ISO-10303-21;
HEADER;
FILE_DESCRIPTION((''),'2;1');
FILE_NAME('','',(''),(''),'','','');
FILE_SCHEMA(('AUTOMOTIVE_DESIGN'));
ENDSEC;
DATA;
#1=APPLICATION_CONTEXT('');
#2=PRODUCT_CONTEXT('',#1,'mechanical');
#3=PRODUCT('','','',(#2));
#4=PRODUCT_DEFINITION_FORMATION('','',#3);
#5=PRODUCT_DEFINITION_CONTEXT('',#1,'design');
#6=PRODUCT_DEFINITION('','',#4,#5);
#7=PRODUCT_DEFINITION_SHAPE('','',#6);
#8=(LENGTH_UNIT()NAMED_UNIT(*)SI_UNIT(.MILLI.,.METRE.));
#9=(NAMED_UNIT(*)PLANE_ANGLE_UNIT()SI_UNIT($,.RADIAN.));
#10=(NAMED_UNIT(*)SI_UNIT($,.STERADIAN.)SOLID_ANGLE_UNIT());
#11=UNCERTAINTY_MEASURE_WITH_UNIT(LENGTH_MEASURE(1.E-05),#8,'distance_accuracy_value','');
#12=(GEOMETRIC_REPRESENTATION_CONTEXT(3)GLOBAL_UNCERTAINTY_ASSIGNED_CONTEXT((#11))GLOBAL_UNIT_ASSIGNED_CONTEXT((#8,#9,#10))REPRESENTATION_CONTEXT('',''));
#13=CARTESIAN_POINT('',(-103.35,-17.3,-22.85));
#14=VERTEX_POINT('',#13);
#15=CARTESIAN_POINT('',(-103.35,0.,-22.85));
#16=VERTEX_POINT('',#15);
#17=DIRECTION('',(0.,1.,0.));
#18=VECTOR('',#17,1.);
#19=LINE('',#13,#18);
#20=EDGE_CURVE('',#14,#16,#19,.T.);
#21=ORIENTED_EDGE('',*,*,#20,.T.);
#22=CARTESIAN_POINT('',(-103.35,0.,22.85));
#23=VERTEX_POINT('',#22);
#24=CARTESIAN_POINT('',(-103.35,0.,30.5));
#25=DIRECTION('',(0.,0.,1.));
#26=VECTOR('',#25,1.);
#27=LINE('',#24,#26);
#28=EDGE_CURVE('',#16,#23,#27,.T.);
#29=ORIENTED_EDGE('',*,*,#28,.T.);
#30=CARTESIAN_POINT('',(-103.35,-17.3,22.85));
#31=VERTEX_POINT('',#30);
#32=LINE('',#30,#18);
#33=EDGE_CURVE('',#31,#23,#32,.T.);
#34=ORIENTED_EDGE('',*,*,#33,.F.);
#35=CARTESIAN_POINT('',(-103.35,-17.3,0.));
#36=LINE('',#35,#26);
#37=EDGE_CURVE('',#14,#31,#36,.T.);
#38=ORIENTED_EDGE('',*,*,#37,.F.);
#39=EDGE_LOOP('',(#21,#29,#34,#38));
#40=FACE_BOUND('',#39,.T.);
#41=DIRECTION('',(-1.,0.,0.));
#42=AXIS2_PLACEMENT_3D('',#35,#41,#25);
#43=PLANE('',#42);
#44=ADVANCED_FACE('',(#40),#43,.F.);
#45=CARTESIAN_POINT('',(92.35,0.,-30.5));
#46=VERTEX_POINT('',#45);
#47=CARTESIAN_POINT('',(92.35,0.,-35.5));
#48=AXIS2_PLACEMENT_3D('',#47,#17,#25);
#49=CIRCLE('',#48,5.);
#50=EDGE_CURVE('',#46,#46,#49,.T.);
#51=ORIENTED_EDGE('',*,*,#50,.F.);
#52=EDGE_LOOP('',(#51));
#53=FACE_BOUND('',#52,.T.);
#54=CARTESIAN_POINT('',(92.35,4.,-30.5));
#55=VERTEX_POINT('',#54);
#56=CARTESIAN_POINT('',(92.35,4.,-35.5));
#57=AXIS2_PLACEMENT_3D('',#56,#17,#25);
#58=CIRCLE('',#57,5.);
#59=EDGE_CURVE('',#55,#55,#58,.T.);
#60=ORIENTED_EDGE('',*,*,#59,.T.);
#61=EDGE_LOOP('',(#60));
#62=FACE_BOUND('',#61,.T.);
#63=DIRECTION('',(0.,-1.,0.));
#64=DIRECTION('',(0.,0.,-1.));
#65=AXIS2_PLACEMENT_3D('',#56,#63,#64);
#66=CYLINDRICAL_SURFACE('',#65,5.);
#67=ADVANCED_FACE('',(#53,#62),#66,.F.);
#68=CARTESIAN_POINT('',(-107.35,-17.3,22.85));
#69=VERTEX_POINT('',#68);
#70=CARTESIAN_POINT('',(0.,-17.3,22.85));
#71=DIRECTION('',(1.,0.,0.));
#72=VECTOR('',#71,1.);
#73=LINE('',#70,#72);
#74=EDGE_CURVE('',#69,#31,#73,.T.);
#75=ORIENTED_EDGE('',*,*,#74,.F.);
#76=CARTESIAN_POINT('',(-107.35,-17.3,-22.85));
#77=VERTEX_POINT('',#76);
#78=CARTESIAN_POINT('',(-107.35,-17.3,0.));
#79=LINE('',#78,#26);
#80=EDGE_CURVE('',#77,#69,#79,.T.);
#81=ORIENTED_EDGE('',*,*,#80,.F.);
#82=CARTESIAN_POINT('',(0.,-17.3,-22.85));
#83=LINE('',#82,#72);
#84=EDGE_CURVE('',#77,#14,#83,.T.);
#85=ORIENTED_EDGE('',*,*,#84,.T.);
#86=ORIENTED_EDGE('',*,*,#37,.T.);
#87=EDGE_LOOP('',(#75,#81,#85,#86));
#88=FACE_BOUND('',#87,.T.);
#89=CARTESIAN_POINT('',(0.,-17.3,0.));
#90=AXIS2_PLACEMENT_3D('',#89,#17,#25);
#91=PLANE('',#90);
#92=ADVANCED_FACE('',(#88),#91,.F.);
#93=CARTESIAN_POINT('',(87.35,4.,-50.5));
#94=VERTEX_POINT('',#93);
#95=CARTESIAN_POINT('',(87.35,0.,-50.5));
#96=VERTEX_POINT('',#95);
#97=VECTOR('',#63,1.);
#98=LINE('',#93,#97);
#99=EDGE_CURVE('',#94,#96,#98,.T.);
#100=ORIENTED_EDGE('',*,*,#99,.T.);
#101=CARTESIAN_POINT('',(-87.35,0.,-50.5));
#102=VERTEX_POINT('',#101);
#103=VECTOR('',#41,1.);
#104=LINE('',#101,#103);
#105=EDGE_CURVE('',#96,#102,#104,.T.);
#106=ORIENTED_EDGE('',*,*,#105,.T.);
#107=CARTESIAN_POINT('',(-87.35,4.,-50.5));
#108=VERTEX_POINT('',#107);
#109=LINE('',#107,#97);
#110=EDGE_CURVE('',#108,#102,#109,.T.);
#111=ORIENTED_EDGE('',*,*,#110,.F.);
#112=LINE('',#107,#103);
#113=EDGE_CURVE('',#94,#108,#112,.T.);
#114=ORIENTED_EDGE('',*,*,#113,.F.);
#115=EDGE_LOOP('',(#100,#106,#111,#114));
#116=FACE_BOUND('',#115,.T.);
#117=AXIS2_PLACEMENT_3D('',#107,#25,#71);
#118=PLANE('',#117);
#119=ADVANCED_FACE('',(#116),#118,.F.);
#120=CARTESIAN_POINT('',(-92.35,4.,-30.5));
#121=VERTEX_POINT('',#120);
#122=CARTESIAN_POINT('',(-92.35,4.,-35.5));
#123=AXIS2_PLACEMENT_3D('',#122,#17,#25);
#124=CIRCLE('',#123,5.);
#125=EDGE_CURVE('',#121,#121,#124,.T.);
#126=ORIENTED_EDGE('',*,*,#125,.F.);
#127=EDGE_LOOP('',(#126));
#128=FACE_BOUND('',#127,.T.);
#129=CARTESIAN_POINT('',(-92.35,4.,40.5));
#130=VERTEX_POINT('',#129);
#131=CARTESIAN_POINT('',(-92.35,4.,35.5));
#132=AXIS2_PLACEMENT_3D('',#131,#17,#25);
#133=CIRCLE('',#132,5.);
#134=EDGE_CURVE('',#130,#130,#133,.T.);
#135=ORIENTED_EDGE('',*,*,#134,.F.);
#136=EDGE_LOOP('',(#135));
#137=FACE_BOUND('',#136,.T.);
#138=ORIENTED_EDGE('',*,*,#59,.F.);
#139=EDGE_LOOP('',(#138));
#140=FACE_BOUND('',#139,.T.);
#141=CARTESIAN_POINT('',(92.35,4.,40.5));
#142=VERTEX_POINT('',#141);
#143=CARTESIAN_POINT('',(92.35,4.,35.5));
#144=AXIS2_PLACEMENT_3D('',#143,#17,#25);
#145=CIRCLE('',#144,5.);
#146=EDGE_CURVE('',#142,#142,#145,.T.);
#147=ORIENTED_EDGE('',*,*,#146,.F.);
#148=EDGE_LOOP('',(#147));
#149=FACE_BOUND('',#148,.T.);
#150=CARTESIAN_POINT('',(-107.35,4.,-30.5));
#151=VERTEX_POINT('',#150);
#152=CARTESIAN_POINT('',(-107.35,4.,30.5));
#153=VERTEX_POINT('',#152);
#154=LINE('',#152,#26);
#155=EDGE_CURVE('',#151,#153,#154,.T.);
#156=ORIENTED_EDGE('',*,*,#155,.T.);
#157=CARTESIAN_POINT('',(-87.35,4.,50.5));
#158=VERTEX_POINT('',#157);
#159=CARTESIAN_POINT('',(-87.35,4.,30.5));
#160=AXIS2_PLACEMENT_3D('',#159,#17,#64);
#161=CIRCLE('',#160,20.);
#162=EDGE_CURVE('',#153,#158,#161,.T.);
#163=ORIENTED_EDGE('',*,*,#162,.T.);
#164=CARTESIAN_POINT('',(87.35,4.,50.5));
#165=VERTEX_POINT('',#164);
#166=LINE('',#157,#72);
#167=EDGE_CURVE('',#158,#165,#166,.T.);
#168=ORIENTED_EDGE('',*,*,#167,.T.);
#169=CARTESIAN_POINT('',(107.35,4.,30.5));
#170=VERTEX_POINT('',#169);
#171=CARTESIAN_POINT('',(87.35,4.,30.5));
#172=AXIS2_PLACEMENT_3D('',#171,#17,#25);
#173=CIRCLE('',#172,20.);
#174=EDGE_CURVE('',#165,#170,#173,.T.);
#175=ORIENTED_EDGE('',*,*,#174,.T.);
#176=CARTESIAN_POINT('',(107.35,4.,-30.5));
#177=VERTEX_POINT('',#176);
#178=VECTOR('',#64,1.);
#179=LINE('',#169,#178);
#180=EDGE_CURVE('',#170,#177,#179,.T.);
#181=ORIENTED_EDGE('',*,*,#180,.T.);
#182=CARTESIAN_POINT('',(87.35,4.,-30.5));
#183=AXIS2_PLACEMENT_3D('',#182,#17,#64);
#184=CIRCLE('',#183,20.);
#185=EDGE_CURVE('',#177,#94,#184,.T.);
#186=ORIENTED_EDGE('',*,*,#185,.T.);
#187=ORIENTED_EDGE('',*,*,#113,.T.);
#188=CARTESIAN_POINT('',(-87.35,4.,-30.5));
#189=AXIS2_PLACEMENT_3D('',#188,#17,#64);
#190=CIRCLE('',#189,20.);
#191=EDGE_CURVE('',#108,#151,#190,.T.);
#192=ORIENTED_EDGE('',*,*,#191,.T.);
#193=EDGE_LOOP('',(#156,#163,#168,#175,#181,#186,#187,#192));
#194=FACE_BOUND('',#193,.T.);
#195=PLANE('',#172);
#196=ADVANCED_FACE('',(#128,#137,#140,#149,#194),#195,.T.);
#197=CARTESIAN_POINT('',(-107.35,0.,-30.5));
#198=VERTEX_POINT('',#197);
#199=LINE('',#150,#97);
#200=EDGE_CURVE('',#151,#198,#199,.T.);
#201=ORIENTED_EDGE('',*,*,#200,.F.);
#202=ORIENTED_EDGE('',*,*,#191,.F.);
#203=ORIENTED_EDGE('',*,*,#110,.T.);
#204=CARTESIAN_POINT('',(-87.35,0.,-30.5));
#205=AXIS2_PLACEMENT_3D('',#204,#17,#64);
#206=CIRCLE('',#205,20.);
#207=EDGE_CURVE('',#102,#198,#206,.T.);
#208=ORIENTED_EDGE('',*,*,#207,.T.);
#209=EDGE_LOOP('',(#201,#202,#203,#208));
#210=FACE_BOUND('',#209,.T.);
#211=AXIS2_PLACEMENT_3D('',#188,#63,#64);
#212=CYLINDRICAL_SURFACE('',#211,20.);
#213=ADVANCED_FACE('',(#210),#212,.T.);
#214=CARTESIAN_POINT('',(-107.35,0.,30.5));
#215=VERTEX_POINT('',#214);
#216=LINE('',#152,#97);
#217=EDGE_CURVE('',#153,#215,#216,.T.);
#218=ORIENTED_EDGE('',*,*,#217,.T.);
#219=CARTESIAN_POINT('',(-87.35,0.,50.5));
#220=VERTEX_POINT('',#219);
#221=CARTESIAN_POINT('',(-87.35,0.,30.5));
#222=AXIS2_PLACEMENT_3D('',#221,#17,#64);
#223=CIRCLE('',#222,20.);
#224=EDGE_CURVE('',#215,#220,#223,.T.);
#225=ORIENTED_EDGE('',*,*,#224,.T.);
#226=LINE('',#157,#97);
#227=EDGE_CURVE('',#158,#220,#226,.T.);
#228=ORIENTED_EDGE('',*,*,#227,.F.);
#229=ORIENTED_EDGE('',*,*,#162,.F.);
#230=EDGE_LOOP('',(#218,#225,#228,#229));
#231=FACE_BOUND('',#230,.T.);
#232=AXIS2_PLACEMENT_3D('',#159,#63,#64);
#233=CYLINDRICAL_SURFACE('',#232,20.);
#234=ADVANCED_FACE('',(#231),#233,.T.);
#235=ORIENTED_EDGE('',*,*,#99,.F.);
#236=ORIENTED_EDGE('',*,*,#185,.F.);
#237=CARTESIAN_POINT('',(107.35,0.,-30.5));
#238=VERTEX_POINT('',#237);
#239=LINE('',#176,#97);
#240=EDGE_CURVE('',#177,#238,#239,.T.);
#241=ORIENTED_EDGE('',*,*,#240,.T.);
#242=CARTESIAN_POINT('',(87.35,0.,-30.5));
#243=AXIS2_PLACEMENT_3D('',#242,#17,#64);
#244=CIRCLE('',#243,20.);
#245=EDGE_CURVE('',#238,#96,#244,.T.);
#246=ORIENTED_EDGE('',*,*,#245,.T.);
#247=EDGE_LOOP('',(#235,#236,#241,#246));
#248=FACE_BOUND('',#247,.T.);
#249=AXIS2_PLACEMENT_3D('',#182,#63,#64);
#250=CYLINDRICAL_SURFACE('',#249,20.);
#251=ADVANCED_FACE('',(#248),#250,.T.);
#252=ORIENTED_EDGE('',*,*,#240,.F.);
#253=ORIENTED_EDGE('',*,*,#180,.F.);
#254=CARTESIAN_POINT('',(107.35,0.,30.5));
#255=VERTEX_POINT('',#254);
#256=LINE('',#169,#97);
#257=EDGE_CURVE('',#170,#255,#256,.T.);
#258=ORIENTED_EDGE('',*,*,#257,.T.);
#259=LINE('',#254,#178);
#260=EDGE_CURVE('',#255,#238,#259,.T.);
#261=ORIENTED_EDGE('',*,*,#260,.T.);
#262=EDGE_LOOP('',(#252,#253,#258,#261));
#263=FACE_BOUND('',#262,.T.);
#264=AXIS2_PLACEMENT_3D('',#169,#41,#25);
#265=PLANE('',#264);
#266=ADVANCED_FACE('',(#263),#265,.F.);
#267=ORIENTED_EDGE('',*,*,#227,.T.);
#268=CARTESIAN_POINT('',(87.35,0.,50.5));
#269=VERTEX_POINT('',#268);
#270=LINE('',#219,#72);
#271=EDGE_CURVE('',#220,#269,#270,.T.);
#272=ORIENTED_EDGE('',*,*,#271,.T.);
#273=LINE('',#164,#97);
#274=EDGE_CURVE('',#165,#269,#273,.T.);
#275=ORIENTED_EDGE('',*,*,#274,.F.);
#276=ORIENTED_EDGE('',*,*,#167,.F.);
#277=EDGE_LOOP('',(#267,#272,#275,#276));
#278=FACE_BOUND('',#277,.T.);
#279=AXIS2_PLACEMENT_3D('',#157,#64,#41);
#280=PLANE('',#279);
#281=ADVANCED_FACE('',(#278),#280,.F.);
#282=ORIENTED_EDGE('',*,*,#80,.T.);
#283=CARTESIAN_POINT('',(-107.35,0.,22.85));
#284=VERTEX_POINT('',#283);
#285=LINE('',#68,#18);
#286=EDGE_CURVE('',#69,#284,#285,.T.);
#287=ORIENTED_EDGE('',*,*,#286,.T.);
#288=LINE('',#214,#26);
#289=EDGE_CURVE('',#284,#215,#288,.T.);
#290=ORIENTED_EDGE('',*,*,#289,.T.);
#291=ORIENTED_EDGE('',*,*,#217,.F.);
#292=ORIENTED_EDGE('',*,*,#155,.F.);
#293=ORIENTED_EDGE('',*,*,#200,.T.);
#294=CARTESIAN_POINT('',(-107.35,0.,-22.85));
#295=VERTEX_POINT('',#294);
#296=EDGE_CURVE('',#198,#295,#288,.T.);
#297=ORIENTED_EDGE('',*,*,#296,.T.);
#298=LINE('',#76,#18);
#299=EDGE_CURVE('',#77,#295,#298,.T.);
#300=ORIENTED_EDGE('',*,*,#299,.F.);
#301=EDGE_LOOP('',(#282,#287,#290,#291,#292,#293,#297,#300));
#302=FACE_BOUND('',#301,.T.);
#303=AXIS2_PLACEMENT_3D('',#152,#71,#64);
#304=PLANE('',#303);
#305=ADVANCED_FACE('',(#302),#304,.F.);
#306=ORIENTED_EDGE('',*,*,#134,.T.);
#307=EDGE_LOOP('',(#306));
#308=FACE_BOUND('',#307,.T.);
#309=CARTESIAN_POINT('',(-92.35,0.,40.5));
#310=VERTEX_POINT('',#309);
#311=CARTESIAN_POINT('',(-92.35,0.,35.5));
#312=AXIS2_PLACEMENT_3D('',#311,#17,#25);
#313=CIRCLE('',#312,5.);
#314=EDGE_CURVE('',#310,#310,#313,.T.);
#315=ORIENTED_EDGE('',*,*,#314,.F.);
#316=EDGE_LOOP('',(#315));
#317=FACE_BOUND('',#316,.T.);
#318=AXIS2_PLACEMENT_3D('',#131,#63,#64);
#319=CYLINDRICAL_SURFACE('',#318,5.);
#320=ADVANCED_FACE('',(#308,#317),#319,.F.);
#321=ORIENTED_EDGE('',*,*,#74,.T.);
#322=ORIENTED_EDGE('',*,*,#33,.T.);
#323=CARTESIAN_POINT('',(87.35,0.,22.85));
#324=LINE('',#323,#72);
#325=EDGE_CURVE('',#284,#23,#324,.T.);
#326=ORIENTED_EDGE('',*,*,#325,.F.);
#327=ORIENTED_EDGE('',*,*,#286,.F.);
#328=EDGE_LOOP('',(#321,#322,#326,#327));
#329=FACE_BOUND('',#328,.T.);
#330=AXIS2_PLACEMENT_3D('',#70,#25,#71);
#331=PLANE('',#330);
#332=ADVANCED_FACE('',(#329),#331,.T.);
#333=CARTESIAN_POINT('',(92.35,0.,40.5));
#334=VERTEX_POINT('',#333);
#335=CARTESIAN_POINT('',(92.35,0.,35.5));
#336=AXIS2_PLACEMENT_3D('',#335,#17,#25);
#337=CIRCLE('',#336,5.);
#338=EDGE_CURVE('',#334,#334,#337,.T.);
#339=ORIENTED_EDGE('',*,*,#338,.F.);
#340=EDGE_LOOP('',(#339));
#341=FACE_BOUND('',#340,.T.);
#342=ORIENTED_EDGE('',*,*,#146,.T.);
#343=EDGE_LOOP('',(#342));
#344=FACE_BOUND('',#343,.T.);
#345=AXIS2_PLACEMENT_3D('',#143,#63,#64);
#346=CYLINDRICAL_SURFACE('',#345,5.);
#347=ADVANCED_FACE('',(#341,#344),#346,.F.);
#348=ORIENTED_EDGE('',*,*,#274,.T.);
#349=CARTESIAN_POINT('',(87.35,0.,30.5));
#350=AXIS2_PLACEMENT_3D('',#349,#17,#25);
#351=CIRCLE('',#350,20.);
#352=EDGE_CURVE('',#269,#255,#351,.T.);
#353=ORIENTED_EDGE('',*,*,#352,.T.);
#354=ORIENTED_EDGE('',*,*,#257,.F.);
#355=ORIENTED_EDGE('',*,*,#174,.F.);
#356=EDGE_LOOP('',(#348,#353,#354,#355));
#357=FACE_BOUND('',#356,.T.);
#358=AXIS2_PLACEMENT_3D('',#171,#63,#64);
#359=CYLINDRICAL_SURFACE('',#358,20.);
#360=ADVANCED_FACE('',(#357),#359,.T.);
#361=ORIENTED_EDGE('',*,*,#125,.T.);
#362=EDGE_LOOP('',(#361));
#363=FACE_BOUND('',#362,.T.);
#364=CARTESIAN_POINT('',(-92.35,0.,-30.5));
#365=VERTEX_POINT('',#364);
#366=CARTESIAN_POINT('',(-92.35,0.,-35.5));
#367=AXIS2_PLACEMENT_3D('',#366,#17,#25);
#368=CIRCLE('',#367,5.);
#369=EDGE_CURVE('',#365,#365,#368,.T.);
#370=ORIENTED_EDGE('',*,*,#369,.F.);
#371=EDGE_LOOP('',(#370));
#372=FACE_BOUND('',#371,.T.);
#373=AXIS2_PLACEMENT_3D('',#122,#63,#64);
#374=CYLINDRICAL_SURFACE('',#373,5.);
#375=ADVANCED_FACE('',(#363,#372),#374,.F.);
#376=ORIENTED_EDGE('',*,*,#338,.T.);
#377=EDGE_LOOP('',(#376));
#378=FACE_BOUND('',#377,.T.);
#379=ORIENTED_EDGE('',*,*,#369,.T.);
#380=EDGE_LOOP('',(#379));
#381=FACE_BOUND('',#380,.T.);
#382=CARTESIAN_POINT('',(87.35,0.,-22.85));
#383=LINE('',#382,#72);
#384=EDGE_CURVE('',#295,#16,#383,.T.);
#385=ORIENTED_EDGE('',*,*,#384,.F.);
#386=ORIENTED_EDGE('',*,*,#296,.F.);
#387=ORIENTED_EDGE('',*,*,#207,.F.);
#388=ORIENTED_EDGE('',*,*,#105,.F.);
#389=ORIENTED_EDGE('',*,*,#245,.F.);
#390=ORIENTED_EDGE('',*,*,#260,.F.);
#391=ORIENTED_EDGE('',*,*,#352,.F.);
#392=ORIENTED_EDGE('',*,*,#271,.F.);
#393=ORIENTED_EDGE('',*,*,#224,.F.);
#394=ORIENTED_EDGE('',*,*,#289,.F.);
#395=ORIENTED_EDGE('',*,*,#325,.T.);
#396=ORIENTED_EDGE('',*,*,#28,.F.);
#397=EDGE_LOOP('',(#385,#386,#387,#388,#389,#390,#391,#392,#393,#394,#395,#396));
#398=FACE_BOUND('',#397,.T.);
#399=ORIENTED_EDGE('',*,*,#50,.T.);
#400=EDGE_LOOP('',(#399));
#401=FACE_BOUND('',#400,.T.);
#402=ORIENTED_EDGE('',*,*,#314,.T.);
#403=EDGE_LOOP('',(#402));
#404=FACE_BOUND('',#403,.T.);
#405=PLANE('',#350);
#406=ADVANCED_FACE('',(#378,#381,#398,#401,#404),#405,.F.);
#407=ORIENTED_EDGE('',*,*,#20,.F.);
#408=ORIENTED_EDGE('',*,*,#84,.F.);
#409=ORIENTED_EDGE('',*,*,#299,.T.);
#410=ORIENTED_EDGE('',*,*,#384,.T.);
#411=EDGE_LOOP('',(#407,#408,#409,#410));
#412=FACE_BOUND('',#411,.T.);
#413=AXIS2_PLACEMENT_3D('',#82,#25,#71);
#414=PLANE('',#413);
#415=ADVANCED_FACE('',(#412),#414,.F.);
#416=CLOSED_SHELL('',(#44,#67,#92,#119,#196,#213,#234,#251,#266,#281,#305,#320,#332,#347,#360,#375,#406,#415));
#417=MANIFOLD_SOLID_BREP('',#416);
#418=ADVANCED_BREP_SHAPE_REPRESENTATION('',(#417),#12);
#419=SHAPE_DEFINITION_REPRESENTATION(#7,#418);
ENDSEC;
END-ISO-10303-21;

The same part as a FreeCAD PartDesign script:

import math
import FreeCAD as App
import Part
import Sketcher

doc = App.newDocument("Part")
params = doc.addObject("Spreadsheet::Sheet", "Params")
for row, (alias, value) in enumerate([
    ("sketch1_diameter", "10 mm"),
    ("sketch1_radius", "20 mm"),
    ("sketch1_height", "61 mm"),
    ("sketch1_width", "174.7 mm"),
    ("pad1_length", "4 mm"),
    ("sketch2_width", "4 mm"),
    ("sketch2_height", "45.7 mm"),
    ("pad2_length", "21.3 mm"),
], start=1):
    params.set(f"A{row}", alias)
    params.set(f"B{row}", "=" + value)
    params.setAlias(f"B{row}", alias)

body = doc.addObject("PartDesign::Body", "Body")

# Sketch on XZ plane
sketch1 = doc.addObject("Sketcher::SketchObject", "Sketch")
body.addObject(sketch1)
sketch1.AttachmentSupport = (doc.XZ_Plane, [""])
sketch1.MapMode = "FlatFace"
sketch1.addGeometry(Part.LineSegment(App.Vector(-87.35, 50.5, 0), App.Vector(87.35, 50.5, 0)), False)
sketch1.addGeometry(Part.ArcOfCircle(Part.Circle(App.Vector(87.35, 30.5, 0), App.Vector(0, 0, 1), 20), math.radians(0), math.radians(90)), False)
sketch1.addGeometry(Part.LineSegment(App.Vector(107.35, 30.5, 0), App.Vector(107.35, -30.5, 0)), False)
sketch1.addGeometry(Part.ArcOfCircle(Part.Circle(App.Vector(87.35, -30.5, 0), App.Vector(0, 0, 1), 20), math.radians(-90), math.radians(0)), False)
sketch1.addGeometry(Part.LineSegment(App.Vector(87.35, -50.5, 0), App.Vector(-87.35, -50.5, 0)), False)
sketch1.addGeometry(Part.ArcOfCircle(Part.Circle(App.Vector(-87.35, -30.5, 0), App.Vector(0, 0, 1), 20), math.radians(180), math.radians(270)), False)
sketch1.addGeometry(Part.LineSegment(App.Vector(-107.35, -30.5, 0), App.Vector(-107.35, 30.5, 0)), False)
sketch1.addGeometry(Part.ArcOfCircle(Part.Circle(App.Vector(-87.35, 30.5, 0), App.Vector(0, 0, 1), 20), math.radians(90), math.radians(180)), False)
sketch1.addGeometry(Part.Circle(App.Vector(-92.35, 35.5, 0), App.Vector(0, 0, 1), 5), False)
sketch1.addGeometry(Part.Circle(App.Vector(92.35, 35.5, 0), App.Vector(0, 0, 1), 5), False)
sketch1.addGeometry(Part.Circle(App.Vector(-92.35, -35.5, 0), App.Vector(0, 0, 1), 5), False)
sketch1.addGeometry(Part.Circle(App.Vector(92.35, -35.5, 0), App.Vector(0, 0, 1), 5), False)
sketch1.addConstraint(Sketcher.Constraint("Tangent", 0, 2, 1, 2))
sketch1.addConstraint(Sketcher.Constraint("Tangent", 1, 1, 2, 1))
sketch1.addConstraint(Sketcher.Constraint("Tangent", 2, 2, 3, 2))
sketch1.addConstraint(Sketcher.Constraint("Tangent", 3, 1, 4, 1))
sketch1.addConstraint(Sketcher.Constraint("Tangent", 4, 2, 5, 2))
sketch1.addConstraint(Sketcher.Constraint("Tangent", 5, 1, 6, 1))
sketch1.addConstraint(Sketcher.Constraint("Tangent", 6, 2, 7, 2))
sketch1.addConstraint(Sketcher.Constraint("Tangent", 7, 1, 0, 1))
sketch1.addConstraint(Sketcher.Constraint("Horizontal", 0))
sketch1.addConstraint(Sketcher.Constraint("Vertical", 2))
sketch1.addConstraint(Sketcher.Constraint("Horizontal", 4))
sketch1.addConstraint(Sketcher.Constraint("Vertical", 6))
sketch1.addConstraint(Sketcher.Constraint("Equal", 1, 3))
sketch1.addConstraint(Sketcher.Constraint("Equal", 3, 5))
sketch1.addConstraint(Sketcher.Constraint("Equal", 5, 7))
sketch1.addConstraint(Sketcher.Constraint("Equal", 8, 9))
sketch1.addConstraint(Sketcher.Constraint("Equal", 9, 10))
sketch1.addConstraint(Sketcher.Constraint("Equal", 10, 11))
sketch1.addConstraint(Sketcher.Constraint("Symmetric", 1, 3, 5, 3, -1, 1))
sketch1.addConstraint(Sketcher.Constraint("Symmetric", 9, 3, 10, 3, -1, 1))
sketch1.addConstraint(Sketcher.Constraint("Symmetric", 8, 3, 11, 3, -1, 1))
sketch1.addConstraint(Sketcher.Constraint("Symmetric", 8, 3, 9, 3, -2))
sketch1.addConstraint(Sketcher.Constraint("Diameter", 8, 10.0))
sketch1.addConstraint(Sketcher.Constraint("Radius", 1, 20.0))
sketch1.addConstraint(Sketcher.Constraint("DistanceY", 2, 2, 2, 1, 61.0))
sketch1.addConstraint(Sketcher.Constraint("DistanceX", 0, 1, 0, 2, 174.7))
sketch1.addConstraint(Sketcher.Constraint("DistanceX", 8, 3, 7, 3, 5.0))
sketch1.addConstraint(Sketcher.Constraint("DistanceY", 7, 3, 8, 3, 5.0))
sketch1.setExpression("Constraints[22]", "Params.sketch1_diameter")
sketch1.setExpression("Constraints[23]", "Params.sketch1_radius")
sketch1.setExpression("Constraints[24]", "Params.sketch1_height")
sketch1.setExpression("Constraints[25]", "Params.sketch1_width")
pad1 = doc.addObject("PartDesign::Pad", "Pad")
body.addObject(pad1)
pad1.Profile = sketch1
pad1.setExpression("Length", "Params.pad1_length")
pad1.Reversed = True

# Sketch on XZ plane
sketch2 = doc.addObject("Sketcher::SketchObject", "Sketch001")
body.addObject(sketch2)
sketch2.AttachmentSupport = (doc.XZ_Plane, [""])
sketch2.MapMode = "FlatFace"
sketch2.AttachmentOffset = App.Placement(App.Vector(0, 0, -4), App.Rotation())
sketch2.addGeometry(Part.LineSegment(App.Vector(-107.35, -22.85, 0), App.Vector(-107.35, 22.85, 0)), False)
sketch2.addGeometry(Part.LineSegment(App.Vector(-107.35, 22.85, 0), App.Vector(-103.35, 22.85, 0)), False)
sketch2.addGeometry(Part.LineSegment(App.Vector(-103.35, 22.85, 0), App.Vector(-103.35, -22.85, 0)), False)
sketch2.addGeometry(Part.LineSegment(App.Vector(-103.35, -22.85, 0), App.Vector(-107.35, -22.85, 0)), False)
sketch2.addConstraint(Sketcher.Constraint("Coincident", 0, 2, 1, 1))
sketch2.addConstraint(Sketcher.Constraint("Coincident", 1, 2, 2, 1))
sketch2.addConstraint(Sketcher.Constraint("Coincident", 2, 2, 3, 1))
sketch2.addConstraint(Sketcher.Constraint("Coincident", 3, 2, 0, 1))
sketch2.addConstraint(Sketcher.Constraint("Vertical", 0))
sketch2.addConstraint(Sketcher.Constraint("Horizontal", 1))
sketch2.addConstraint(Sketcher.Constraint("Vertical", 2))
sketch2.addConstraint(Sketcher.Constraint("Horizontal", 3))
sketch2.addConstraint(Sketcher.Constraint("DistanceX", 1, 1, 1, 2, 4.0))
sketch2.addConstraint(Sketcher.Constraint("DistanceY", 0, 1, 0, 2, 45.7))
sketch2.addConstraint(Sketcher.Constraint("DistanceX", 0, 2, -1, 1, 107.35))
sketch2.addConstraint(Sketcher.Constraint("DistanceY", -1, 1, 0, 2, 22.85))
sketch2.setExpression("Constraints[8]", "Params.sketch2_width")
sketch2.setExpression("Constraints[9]", "Params.sketch2_height")
pad2 = doc.addObject("PartDesign::Pad", "Pad001")
body.addObject(pad2)
pad2.Profile = sketch2
pad2.setExpression("Length", "Params.pad2_length")

doc.recompute()
